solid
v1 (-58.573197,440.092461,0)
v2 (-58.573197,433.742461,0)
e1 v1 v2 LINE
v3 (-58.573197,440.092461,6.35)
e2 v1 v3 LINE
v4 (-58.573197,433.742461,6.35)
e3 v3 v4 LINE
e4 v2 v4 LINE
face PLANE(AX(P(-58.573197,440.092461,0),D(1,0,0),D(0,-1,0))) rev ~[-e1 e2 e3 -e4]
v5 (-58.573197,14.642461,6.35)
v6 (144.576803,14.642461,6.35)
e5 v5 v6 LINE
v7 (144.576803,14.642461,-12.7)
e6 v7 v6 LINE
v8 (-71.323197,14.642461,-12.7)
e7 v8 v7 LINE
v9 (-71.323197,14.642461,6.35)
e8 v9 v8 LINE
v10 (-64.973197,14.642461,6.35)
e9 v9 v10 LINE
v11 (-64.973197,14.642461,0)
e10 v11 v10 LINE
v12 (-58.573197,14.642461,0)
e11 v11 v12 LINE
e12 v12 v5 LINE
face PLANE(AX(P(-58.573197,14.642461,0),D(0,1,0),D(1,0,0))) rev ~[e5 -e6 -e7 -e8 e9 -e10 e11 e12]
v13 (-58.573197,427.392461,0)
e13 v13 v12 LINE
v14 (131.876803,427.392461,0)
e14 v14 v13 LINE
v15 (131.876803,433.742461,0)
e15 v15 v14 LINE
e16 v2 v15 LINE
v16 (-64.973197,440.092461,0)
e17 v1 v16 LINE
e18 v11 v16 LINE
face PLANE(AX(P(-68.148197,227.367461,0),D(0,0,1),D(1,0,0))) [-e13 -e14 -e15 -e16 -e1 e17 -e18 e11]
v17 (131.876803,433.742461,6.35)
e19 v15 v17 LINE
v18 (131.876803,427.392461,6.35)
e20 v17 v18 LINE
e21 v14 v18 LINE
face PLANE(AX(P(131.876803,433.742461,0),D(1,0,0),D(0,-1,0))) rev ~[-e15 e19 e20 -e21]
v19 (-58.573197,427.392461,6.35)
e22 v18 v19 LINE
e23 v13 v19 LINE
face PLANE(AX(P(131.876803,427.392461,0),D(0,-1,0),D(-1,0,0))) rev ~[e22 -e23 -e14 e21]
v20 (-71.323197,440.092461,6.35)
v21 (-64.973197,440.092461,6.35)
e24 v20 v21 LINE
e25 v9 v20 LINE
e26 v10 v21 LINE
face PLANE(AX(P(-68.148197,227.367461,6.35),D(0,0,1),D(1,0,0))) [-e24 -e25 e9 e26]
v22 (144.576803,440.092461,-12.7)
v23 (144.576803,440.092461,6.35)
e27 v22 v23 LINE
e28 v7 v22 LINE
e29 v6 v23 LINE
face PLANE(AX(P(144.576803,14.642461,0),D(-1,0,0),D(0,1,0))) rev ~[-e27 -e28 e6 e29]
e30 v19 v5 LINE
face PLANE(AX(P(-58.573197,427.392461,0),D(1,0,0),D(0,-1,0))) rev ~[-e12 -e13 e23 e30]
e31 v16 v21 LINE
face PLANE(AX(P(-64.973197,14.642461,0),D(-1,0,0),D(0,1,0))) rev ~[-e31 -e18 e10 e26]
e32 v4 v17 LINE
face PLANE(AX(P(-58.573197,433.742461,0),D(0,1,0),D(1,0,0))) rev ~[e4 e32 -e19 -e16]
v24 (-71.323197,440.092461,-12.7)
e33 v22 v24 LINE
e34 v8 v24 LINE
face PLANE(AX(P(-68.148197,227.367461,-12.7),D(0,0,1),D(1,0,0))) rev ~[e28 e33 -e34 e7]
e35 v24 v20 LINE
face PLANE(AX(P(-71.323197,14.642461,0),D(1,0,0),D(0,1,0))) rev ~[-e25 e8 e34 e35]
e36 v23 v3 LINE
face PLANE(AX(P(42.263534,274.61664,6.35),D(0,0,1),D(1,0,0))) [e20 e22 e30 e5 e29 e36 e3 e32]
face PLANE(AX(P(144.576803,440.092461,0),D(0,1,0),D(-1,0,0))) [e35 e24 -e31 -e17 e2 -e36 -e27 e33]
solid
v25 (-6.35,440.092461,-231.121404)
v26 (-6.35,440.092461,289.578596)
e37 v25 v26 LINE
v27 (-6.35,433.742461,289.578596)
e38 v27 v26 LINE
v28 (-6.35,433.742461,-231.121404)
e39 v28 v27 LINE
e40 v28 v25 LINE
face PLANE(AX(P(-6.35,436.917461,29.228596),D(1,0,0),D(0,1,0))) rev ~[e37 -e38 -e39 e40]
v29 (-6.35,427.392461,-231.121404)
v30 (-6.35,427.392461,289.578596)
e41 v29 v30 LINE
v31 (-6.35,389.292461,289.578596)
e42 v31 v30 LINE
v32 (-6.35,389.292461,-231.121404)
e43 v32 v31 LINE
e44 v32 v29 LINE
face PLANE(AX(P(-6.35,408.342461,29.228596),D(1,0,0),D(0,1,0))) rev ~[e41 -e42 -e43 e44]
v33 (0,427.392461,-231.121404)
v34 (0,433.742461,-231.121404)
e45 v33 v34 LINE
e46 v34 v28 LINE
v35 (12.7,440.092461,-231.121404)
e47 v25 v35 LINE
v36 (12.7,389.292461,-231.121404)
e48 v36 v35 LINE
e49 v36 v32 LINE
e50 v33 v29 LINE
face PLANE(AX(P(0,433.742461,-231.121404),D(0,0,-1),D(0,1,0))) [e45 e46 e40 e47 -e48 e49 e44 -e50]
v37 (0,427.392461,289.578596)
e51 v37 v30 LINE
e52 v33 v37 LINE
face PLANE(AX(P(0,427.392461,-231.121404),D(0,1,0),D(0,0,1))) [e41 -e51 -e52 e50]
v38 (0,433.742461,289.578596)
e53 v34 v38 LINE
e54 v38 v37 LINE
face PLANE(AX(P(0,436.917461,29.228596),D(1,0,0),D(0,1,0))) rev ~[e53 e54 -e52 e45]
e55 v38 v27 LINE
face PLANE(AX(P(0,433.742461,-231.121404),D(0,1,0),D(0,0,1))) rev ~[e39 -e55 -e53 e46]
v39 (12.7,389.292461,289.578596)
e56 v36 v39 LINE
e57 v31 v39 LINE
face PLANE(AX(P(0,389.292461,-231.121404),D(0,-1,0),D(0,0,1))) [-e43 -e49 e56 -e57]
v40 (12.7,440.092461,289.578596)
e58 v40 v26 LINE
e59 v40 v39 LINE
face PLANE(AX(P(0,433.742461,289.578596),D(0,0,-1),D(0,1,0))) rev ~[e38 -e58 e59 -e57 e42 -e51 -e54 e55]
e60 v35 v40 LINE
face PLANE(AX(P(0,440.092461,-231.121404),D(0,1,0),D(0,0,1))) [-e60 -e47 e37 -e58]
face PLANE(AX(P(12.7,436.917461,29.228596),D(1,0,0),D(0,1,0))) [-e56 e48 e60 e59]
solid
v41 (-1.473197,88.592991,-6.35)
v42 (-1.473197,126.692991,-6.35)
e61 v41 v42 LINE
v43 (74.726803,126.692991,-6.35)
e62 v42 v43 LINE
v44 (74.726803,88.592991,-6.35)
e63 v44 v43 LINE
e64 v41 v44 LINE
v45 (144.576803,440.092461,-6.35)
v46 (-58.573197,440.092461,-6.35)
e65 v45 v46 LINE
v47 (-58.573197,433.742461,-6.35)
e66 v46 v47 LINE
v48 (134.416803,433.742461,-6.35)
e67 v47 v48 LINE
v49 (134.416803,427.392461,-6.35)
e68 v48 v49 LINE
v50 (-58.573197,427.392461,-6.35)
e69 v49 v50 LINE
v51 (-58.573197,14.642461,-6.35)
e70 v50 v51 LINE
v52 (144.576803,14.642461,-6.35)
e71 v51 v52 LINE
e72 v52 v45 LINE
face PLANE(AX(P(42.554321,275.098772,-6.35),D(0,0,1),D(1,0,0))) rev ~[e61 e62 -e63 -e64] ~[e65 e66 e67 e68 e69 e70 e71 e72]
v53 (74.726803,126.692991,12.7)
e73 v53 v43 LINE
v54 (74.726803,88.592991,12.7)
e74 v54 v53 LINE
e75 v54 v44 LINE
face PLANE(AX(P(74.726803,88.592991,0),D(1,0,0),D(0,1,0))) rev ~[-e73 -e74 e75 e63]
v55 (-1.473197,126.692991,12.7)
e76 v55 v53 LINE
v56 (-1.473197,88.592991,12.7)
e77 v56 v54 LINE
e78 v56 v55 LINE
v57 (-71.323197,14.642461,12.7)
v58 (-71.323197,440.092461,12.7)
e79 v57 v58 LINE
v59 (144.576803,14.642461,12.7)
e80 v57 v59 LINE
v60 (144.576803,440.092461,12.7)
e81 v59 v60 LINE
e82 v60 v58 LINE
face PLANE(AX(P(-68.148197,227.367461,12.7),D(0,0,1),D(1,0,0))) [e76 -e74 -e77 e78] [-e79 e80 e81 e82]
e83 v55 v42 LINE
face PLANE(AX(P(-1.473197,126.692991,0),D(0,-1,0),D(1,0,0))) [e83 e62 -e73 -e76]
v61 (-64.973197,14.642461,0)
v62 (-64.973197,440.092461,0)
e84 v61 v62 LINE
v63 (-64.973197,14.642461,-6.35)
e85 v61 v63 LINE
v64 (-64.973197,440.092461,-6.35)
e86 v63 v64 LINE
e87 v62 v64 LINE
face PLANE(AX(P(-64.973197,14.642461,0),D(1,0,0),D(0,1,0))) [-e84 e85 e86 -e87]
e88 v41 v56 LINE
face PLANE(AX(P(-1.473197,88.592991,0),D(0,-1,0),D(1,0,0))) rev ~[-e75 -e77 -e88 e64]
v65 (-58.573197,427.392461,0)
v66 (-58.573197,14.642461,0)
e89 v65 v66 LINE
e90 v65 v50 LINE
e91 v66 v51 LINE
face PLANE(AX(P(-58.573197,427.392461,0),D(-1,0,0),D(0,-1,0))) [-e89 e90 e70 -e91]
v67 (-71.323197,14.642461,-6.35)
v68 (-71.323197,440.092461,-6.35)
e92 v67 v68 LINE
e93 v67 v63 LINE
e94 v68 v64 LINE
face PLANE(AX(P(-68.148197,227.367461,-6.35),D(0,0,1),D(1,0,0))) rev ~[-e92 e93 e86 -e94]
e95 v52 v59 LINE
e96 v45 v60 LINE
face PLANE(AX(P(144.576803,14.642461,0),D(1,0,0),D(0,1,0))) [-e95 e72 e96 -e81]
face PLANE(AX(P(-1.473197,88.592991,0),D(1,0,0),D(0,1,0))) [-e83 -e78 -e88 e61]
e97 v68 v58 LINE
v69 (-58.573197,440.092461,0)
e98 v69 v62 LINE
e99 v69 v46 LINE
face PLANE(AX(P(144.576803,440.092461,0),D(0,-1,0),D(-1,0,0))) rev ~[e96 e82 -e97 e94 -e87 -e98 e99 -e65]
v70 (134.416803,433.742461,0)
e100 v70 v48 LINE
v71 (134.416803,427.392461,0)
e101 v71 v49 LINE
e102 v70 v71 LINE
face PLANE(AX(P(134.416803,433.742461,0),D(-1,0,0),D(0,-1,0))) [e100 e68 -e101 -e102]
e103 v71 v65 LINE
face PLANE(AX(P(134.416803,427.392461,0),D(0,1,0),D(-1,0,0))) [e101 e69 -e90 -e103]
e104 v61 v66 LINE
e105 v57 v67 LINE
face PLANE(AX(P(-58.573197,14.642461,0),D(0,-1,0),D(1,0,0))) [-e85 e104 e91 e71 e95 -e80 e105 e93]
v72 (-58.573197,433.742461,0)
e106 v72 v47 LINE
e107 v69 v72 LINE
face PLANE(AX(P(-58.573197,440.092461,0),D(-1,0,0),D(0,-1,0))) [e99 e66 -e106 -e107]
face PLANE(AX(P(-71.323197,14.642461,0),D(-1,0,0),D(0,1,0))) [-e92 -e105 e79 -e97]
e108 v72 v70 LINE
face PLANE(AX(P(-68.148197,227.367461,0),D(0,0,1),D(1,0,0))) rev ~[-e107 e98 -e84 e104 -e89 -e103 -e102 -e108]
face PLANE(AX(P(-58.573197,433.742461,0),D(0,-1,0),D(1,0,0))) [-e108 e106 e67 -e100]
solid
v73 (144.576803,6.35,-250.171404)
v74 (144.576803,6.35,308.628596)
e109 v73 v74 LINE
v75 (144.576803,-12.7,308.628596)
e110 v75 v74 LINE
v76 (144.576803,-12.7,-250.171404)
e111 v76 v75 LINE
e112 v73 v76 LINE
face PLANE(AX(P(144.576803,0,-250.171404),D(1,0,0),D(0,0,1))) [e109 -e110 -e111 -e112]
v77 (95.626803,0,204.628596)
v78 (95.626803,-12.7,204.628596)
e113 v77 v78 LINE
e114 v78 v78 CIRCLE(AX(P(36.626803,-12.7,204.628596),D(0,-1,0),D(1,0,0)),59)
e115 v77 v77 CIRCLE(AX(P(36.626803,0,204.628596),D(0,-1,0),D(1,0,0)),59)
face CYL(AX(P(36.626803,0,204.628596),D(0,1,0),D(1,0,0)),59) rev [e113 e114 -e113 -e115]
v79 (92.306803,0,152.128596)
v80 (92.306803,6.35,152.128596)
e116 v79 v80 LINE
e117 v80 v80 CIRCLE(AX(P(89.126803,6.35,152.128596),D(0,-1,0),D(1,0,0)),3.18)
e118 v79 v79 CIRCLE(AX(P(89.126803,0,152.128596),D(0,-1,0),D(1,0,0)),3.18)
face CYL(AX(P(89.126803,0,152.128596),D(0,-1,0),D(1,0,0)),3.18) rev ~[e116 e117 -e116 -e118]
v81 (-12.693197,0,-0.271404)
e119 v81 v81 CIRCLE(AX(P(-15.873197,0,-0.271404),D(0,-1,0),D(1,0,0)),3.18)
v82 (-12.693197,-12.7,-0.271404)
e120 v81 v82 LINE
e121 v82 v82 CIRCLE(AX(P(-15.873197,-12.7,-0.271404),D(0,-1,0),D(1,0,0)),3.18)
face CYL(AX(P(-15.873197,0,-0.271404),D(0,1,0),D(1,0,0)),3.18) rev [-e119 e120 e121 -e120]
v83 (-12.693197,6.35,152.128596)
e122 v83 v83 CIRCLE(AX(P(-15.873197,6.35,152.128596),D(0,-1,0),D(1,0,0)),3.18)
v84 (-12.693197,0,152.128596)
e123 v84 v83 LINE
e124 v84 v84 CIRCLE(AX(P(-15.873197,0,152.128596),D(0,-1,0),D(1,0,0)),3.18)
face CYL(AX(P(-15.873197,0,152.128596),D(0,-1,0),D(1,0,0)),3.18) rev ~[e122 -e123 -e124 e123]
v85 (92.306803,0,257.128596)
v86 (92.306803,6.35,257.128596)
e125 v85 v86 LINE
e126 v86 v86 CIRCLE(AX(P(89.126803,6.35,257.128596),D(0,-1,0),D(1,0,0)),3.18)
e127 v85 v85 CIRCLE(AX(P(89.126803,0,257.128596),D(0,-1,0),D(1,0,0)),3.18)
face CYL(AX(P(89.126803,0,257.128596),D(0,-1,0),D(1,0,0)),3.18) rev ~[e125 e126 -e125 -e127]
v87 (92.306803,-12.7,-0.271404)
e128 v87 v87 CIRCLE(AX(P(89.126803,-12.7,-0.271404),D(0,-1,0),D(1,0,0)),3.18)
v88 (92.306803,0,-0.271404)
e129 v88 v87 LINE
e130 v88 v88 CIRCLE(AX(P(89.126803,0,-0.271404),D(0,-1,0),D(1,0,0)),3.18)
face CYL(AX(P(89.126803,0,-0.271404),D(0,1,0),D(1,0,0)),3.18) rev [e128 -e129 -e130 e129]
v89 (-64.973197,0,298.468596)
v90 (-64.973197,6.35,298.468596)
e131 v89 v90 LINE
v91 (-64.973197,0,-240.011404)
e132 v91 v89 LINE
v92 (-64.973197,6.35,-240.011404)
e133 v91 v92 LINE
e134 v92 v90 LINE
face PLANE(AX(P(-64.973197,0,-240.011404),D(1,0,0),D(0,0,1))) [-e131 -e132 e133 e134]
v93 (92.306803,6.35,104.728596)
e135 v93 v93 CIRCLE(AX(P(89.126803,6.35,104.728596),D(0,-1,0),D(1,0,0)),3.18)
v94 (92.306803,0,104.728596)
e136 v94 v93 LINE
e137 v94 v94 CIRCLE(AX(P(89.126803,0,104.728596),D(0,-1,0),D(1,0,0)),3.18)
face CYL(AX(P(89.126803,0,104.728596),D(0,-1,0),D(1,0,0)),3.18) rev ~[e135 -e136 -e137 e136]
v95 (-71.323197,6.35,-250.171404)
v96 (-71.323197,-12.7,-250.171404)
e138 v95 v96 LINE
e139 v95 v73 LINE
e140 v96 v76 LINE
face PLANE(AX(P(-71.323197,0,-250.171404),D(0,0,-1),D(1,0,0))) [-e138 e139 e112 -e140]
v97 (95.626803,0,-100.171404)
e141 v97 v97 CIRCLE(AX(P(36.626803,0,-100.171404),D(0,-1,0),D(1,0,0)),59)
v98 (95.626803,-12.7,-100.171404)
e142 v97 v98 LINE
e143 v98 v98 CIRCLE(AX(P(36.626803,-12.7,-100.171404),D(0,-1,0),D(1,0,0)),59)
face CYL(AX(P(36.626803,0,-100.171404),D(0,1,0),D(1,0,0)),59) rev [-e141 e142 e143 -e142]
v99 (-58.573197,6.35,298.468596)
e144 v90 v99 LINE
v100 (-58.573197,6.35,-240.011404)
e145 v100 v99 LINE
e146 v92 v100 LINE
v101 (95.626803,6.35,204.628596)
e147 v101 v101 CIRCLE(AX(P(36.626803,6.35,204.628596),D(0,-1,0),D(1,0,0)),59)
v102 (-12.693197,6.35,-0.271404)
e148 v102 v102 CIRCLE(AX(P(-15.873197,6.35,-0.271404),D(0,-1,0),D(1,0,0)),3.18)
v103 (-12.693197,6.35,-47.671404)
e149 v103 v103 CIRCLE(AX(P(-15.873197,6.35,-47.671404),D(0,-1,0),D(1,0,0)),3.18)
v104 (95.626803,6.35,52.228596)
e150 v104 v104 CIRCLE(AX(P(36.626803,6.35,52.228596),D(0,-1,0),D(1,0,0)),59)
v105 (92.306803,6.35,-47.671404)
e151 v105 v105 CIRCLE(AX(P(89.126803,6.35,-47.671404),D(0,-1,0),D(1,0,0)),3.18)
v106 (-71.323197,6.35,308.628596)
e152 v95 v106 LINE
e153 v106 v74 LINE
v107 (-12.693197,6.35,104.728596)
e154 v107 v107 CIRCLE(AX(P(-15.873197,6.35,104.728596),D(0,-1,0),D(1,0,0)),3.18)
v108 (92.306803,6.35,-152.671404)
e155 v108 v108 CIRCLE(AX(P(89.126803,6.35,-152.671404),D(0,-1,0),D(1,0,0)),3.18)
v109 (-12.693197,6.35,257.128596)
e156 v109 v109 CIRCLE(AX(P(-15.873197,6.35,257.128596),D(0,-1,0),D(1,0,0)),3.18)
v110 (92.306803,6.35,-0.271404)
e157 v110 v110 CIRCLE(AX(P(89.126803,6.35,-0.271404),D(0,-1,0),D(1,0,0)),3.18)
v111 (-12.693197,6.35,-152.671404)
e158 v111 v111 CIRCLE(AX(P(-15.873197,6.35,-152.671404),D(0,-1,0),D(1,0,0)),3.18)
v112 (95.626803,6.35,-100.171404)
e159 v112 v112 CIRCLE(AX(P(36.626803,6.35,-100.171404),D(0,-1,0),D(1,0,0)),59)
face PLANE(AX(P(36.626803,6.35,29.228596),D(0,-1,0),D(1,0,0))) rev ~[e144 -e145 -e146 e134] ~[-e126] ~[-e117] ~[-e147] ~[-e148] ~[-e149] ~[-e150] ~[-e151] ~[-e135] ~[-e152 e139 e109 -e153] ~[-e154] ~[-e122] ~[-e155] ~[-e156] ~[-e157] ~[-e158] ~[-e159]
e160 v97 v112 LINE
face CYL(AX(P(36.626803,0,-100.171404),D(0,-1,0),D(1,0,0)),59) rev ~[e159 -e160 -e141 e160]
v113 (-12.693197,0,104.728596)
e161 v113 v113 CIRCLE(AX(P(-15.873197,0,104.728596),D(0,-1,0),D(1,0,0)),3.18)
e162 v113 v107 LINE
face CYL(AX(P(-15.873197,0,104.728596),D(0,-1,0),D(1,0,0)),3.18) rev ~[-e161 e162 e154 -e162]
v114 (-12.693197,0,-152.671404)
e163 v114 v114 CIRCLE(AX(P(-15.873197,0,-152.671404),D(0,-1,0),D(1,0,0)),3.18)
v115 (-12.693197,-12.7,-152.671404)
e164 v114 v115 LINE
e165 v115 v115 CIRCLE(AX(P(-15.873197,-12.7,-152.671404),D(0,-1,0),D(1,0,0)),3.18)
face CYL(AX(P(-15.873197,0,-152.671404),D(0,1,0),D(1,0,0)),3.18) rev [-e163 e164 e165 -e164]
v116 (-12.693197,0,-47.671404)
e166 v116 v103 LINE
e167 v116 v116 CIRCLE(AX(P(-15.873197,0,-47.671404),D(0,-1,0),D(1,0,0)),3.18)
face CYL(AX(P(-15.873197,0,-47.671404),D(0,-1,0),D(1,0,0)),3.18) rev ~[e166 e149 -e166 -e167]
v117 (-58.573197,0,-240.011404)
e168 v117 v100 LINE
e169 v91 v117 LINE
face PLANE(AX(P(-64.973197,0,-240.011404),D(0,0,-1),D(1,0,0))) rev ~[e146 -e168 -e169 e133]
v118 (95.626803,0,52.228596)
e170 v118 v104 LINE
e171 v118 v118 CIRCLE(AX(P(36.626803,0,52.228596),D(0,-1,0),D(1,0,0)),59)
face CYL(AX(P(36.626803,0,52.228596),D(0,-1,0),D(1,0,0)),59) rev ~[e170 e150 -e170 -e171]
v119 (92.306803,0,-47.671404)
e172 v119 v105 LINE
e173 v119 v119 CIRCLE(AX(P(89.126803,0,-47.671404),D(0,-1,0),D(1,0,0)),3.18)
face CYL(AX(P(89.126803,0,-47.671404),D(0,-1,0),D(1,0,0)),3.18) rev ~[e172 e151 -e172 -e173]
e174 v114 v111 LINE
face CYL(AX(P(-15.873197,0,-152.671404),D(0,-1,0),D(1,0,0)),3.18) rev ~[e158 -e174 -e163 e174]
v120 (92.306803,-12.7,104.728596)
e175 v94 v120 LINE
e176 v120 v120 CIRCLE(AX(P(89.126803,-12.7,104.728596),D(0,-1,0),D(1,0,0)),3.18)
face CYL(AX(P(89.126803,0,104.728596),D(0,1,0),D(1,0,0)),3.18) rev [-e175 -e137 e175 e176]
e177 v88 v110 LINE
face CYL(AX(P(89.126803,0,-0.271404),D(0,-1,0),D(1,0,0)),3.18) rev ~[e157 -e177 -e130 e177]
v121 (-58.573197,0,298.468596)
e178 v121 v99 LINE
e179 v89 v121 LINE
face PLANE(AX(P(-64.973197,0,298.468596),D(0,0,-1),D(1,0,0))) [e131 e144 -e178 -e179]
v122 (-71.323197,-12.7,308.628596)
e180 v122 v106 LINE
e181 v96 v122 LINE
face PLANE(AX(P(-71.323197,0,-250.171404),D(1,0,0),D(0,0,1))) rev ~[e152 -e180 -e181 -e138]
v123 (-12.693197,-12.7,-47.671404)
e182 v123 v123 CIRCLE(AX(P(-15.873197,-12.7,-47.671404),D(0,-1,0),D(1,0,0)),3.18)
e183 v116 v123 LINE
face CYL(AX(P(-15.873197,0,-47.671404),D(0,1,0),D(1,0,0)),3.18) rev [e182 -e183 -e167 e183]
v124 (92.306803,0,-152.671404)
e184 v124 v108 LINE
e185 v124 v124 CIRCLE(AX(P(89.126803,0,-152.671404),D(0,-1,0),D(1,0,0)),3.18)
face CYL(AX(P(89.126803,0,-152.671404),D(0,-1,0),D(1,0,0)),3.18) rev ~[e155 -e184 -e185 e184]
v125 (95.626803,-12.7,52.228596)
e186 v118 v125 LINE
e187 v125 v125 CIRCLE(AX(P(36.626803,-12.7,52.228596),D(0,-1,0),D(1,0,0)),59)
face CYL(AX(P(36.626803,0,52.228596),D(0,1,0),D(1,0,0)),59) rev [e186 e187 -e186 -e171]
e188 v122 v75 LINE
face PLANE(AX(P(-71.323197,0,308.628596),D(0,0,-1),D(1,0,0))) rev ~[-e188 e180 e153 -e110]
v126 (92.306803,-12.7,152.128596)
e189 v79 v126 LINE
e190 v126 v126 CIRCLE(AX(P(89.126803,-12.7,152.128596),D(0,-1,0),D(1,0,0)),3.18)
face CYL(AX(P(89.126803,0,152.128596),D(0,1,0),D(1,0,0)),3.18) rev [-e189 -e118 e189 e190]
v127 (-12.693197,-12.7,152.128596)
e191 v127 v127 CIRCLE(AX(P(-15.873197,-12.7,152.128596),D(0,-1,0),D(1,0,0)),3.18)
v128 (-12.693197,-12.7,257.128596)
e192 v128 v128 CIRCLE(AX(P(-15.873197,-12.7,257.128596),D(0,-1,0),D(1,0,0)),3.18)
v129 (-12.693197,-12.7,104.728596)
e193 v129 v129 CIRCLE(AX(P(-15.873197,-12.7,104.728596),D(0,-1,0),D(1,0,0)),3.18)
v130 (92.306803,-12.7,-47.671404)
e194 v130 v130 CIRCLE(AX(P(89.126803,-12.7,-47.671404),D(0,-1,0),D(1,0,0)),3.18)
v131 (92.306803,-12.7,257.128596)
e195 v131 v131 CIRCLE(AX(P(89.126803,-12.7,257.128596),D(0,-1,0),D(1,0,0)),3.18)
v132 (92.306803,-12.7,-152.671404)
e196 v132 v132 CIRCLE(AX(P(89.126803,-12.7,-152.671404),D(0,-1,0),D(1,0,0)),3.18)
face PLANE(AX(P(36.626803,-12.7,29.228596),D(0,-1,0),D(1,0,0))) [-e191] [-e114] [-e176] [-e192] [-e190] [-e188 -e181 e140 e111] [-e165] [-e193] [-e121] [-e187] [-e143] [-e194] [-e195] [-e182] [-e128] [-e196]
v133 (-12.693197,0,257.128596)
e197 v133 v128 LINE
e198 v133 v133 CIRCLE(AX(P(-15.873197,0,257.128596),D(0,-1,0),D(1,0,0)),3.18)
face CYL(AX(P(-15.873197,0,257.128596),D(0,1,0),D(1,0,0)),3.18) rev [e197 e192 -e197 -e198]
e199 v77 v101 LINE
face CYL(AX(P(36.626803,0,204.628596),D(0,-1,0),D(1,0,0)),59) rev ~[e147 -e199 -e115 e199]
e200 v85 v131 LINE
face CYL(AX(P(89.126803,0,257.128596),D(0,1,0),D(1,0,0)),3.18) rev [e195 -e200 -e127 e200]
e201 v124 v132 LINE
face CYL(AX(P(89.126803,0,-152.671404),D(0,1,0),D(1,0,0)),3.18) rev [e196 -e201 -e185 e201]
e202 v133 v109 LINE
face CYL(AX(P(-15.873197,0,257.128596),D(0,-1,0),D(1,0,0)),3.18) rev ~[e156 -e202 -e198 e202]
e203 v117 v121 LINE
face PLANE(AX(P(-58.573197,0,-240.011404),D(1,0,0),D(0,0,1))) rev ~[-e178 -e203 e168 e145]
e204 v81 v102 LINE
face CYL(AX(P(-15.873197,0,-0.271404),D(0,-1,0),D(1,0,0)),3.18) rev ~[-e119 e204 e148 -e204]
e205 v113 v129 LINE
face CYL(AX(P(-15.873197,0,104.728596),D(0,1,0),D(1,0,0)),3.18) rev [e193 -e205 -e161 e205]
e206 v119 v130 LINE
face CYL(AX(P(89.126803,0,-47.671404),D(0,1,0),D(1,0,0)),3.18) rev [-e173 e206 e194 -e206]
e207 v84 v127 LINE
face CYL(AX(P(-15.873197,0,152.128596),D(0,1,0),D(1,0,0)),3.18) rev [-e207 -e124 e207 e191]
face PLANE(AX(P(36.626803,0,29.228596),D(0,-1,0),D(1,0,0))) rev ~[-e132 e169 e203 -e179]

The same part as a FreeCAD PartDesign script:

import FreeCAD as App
import Part
import Sketcher
Q = App.Units.Quantity

doc = App.newDocument("Part")
params = doc.addObject("Spreadsheet::Sheet", "Params")
for row, (alias, value) in enumerate([
    ("sketch1_height", "22 in"),
    ("sketch1_width", "8.5 in"),
    ("pad1_length", "0.5 in"),
    ("sketch2_height", "22 in"),
    ("sketch2_width", "8.5 in"),
    ("sketch2_height2", "21.2 in"),
    ("pad2_length", "0.25 in"),
    ("sketch3_width", "3 in"),
    ("sketch3_width2", "8.5 in"),
    ("sketch3_height", "1.5 in"),
    ("sketch3_height2", "16.75 in"),
    ("pad3_length", "0.5 in"),
    ("sketch4_width", "3 in"),
    ("sketch4_height", "1.5 in"),
    ("sketch4_width2", "0.25 in"),
    ("sketch4_height2", "16.25 in"),
    ("pad4_length", "0.25 in"),
    ("sketch5_width", "8.5 in"),
    ("sketch5_height", "16.75 in"),
    ("pad5_length", "0.5 in"),
    ("sketch6_width", "0.25 in"),
    ("sketch6_height", "16.25 in"),
    ("pad6_length", "0.25 in"),
    ("sketch7_width", "2 in"),
    ("sketch7_height", "20.5 in"),
    ("pad7_length", "0.5 in"),
    ("sketch8_width", "1.5 in"),
    ("sketch8_height", "20.5 in"),
    ("sketch8_width2", "0.25 in"),
    ("pad8_length", "0.25 in"),
], start=1):
    params.set(f"A{row}", alias)
    params.set(f"B{row}", "=" + value)
    params.setAlias(f"B{row}", alias)

body = doc.addObject("PartDesign::Body", "Body")

# Sketch on XZ plane
sketch1 = body.newObject("Sketcher::SketchObject", "Sketch")
sketch1.AttachmentSupport = (doc.getObject("XZ_Plane"), [""])
sketch1.MapMode = "FlatFace"
sketch1.addGeometry([
    Part.LineSegment(App.Vector(-71.323197, 308.628596, 0), App.Vector(-71.323197, -250.171404, 0)),  # 0
    Part.LineSegment(App.Vector(-71.323197, -250.171404, 0), App.Vector(144.576803, -250.171404, 0)),  # 1
    Part.LineSegment(App.Vector(144.576803, -250.171404, 0), App.Vector(144.576803, 308.628596, 0)),  # 2
    Part.LineSegment(App.Vector(144.576803, 308.628596, 0), App.Vector(-71.323197, 308.628596, 0)),  # 3
    Part.Circle(App.Vector(-15.873197, -152.671404, 0), App.Vector(0, 0, 1), 3.18),  # 4
    Part.Circle(App.Vector(-15.873197, -47.671404, 0), App.Vector(0, 0, 1), 3.18),  # 5
    Part.Circle(App.Vector(-15.873197, -0.271404, 0), App.Vector(0, 0, 1), 3.18),  # 6
    Part.Circle(App.Vector(89.126803, -152.671404, 0), App.Vector(0, 0, 1), 3.18),  # 7
    Part.Circle(App.Vector(36.626803, -100.171404, 0), App.Vector(0, 0, 1), 59),  # 8
    Part.Circle(App.Vector(89.126803, -47.671404, 0), App.Vector(0, 0, 1), 3.18),  # 9
    Part.Circle(App.Vector(89.126803, -0.271404, 0), App.Vector(0, 0, 1), 3.18),  # 10
    Part.Circle(App.Vector(-15.873197, 104.728596, 0), App.Vector(0, 0, 1), 3.18),  # 11
    Part.Circle(App.Vector(-15.873197, 152.128596, 0), App.Vector(0, 0, 1), 3.18),  # 12
    Part.Circle(App.Vector(-15.873197, 257.128596, 0), App.Vector(0, 0, 1), 3.18),  # 13
    Part.Circle(App.Vector(36.626803, 52.228596, 0), App.Vector(0, 0, 1), 59),  # 14
    Part.Circle(App.Vector(89.126803, 104.728596, 0), App.Vector(0, 0, 1), 3.18),  # 15
    Part.Circle(App.Vector(89.126803, 152.128596, 0), App.Vector(0, 0, 1), 3.18),  # 16
    Part.Circle(App.Vector(36.626803, 204.628596, 0), App.Vector(0, 0, 1), 59),  # 17
    Part.Circle(App.Vector(89.126803, 257.128596, 0), App.Vector(0, 0, 1), 3.18),  # 18
], False)
sketch1.addConstraint([
    Sketcher.Constraint("Coincident", 0, 2, 1, 1),
    Sketcher.Constraint("Coincident", 1, 2, 2, 1),
    Sketcher.Constraint("Coincident", 2, 2, 3, 1),
    Sketcher.Constraint("Coincident", 3, 2, 0, 1),
    Sketcher.Constraint("Vertical", 0),
    Sketcher.Constraint("Horizontal", 1),
    Sketcher.Constraint("Vertical", 2),
    Sketcher.Constraint("Horizontal", 3),
    Sketcher.Constraint("Equal", 4, 5),
    Sketcher.Constraint("Equal", 5, 6),
    Sketcher.Constraint("Equal", 6, 7),
    Sketcher.Constraint("Equal", 7, 9),
    Sketcher.Constraint("Equal", 9, 10),
    Sketcher.Constraint("Equal", 10, 11),
    Sketcher.Constraint("Equal", 11, 12),
    Sketcher.Constraint("Equal", 12, 13),
    Sketcher.Constraint("Equal", 8, 14),
    Sketcher.Constraint("Equal", 13, 15),
    Sketcher.Constraint("Equal", 15, 16),
    Sketcher.Constraint("Equal", 14, 17),
    Sketcher.Constraint("Equal", 16, 18),
    Sketcher.Constraint("Horizontal", 4, 3, 7, 3),
    Sketcher.Constraint("Horizontal", 5, 3, 9, 3),
    Sketcher.Constraint("Horizontal", 6, 3, 10, 3),
    Sketcher.Constraint("Horizontal", 11, 3, 15, 3),
    Sketcher.Constraint("Horizontal", 12, 3, 16, 3),
    Sketcher.Constraint("Horizontal", 13, 3, 18, 3),
    Sketcher.Constraint("Vertical", 4, 3, 5, 3),
    Sketcher.Constraint("Vertical", 5, 3, 6, 3),
    Sketcher.Constraint("Vertical", 7, 3, 9, 3),
    Sketcher.Constraint("Vertical", 9, 3, 10, 3),
    Sketcher.Constraint("Vertical", 6, 3, 11, 3),
    Sketcher.Constraint("Vertical", 11, 3, 12, 3),
    Sketcher.Constraint("Vertical", 12, 3, 13, 3),
    Sketcher.Constraint("Vertical", 8, 3, 14, 3),
    Sketcher.Constraint("Vertical", 10, 3, 15, 3),
    Sketcher.Constraint("Vertical", 15, 3, 16, 3),
    Sketcher.Constraint("Vertical", 14, 3, 17, 3),
    Sketcher.Constraint("Vertical", 16, 3, 18, 3),
    Sketcher.Constraint("DistanceY", 0, 2, 0, 1, Q("22 in")),
    Sketcher.Constraint("DistanceX", 1, 1, 1, 2, Q("8.5 in")),
    Sketcher.Constraint("DistanceY", 4, 3, 6, 3, Q("6 in")),
    Sketcher.Constraint("DistanceY", 5, 3, 11, 3, Q("6 in")),
    Sketcher.Constraint("DistanceY", 6, 3, 12, 3, Q("6 in")),
    Sketcher.Constraint("DistanceY", 11, 3, 13, 3, Q("6 in")),
    Sketcher.Constraint("Diameter", 4, Q("6.36 mm")),
    Sketcher.Constraint("Diameter", 8, Q("118 mm")),
    Sketcher.Constraint("DistanceX", 0, 2, 8, 3, Q("4.25 in")),
    Sketcher.Constraint("DistanceX", -1, 1, 8, 3, Q("1.4420001 in")),
    Sketcher.Constraint("DistanceY", 4, 3, 5, 3, Q("105 mm")),
    Sketcher.Constraint("DistanceX", 4, 3, 7, 3, Q("105 mm")),
    Sketcher.Constraint("DistanceX", 4, 3, 8, 3, Q("52.5 mm")),
    Sketcher.Constraint("DistanceY", 4, 3, 8, 3, Q("52.5 mm")),
    Sketcher.Constraint("DistanceY", 6, 3, 14, 3, Q("52.5 mm")),
    Sketcher.Constraint("DistanceY", 12, 3, 17, 3, Q("52.5 mm")),
    Sketcher.Constraint("DistanceY", 0, 2, 4, 3, Q("97.5 mm")),
    Sketcher.Constraint("DistanceY", 4, 3, -1, 1, Q("152.671404 mm")),
])
sketch1.setExpression("Constraints[39]", "Params.sketch1_height")
sketch1.setExpression("Constraints[40]", "Params.sketch1_width")
pad1 = body.newObject("PartDesign::Pad", "Pad")
pad1.Profile = sketch1
pad1.setExpression("Length", "Params.pad1_length")

# Sketch on XZ plane
sketch2 = body.newObject("Sketcher::SketchObject", "Sketch001")
sketch2.AttachmentSupport = (doc.getObject("XZ_Plane"), [""])
sketch2.MapMode = "FlatFace"
sketch2.addGeometry([
    Part.LineSegment(App.Vector(-71.323197, 308.628596, 0), App.Vector(-71.323197, -250.171404, 0)),  # 0
    Part.LineSegment(App.Vector(-71.323197, -250.171404, 0), App.Vector(144.576803, -250.171404, 0)),  # 1
    Part.LineSegment(App.Vector(144.576803, -250.171404, 0), App.Vector(144.576803, 308.628596, 0)),  # 2
    Part.LineSegment(App.Vector(144.576803, 308.628596, 0), App.Vector(-71.323197, 308.628596, 0)),  # 3
    Part.Circle(App.Vector(-15.873197, -152.671404, 0), App.Vector(0, 0, 1), 3.18),  # 4
    Part.Circle(App.Vector(-15.873197, -47.671404, 0), App.Vector(0, 0, 1), 3.18),  # 5
    Part.Circle(App.Vector(-15.873197, -0.271404, 0), App.Vector(0, 0, 1), 3.18),  # 6
    Part.Circle(App.Vector(89.126803, -152.671404, 0), App.Vector(0, 0, 1), 3.18),  # 7
    Part.Circle(App.Vector(36.626803, -100.171404, 0), App.Vector(0, 0, 1), 59),  # 8
    Part.Circle(App.Vector(89.126803, -47.671404, 0), App.Vector(0, 0, 1), 3.18),  # 9
    Part.Circle(App.Vector(89.126803, -0.271404, 0), App.Vector(0, 0, 1), 3.18),  # 10
    Part.LineSegment(App.Vector(-58.573197, -240.011404, 0), App.Vector(-64.973197, -240.011404, 0)),  # 11
    Part.LineSegment(App.Vector(-64.973197, -240.011404, 0), App.Vector(-64.973197, 298.468596, 0)),  # 12
    Part.LineSegment(App.Vector(-64.973197, 298.468596, 0), App.Vector(-58.573197, 298.468596, 0)),  # 13
    Part.LineSegment(App.Vector(-58.573197, 298.468596, 0), App.Vector(-58.573197, -240.011404, 0)),  # 14
    Part.Circle(App.Vector(-15.873197, 104.728596, 0), App.Vector(0, 0, 1), 3.18),  # 15
    Part.Circle(App.Vector(-15.873197, 152.128596, 0), App.Vector(0, 0, 1), 3.18),  # 16
    Part.Circle(App.Vector(-15.873197, 257.128596, 0), App.Vector(0, 0, 1), 3.18),  # 17
    Part.Circle(App.Vector(36.626803, 52.228596, 0), App.Vector(0, 0, 1), 59),  # 18
    Part.Circle(App.Vector(89.126803, 104.728596, 0), App.Vector(0, 0, 1), 3.18),  # 19
    Part.Circle(App.Vector(89.126803, 152.128596, 0), App.Vector(0, 0, 1), 3.18),  # 20
    Part.Circle(App.Vector(36.626803, 204.628596, 0), App.Vector(0, 0, 1), 59),  # 21
    Part.Circle(App.Vector(89.126803, 257.128596, 0), App.Vector(0, 0, 1), 3.18),  # 22
], False)
sketch2.addConstraint([
    Sketcher.Constraint("Coincident", 0, 2, 1, 1),
    Sketcher.Constraint("Coincident", 1, 2, 2, 1),
    Sketcher.Constraint("Coincident", 2, 2, 3, 1),
    Sketcher.Constraint("Coincident", 3, 2, 0, 1),
    Sketcher.Constraint("Coincident", 11, 2, 12, 1),
    Sketcher.Constraint("Coincident", 12, 2, 13, 1),
    Sketcher.Constraint("Coincident", 13, 2, 14, 1),
    Sketcher.Constraint("Coincident", 14, 2, 11, 1),
    Sketcher.Constraint("Vertical", 0),
    Sketcher.Constraint("Horizontal", 1),
    Sketcher.Constraint("Vertical", 2),
    Sketcher.Constraint("Horizontal", 3),
    Sketcher.Constraint("Horizontal", 11),
    Sketcher.Constraint("Vertical", 12),
    Sketcher.Constraint("Horizontal", 13),
    Sketcher.Constraint("Vertical", 14),
    Sketcher.Constraint("Equal", 4, 5),
    Sketcher.Constraint("Equal", 5, 6),
    Sketcher.Constraint("Equal", 6, 7),
    Sketcher.Constraint("Equal", 7, 9),
    Sketcher.Constraint("Equal", 9, 10),
    Sketcher.Constraint("Equal", 10, 15),
    Sketcher.Constraint("Equal", 15, 16),
    Sketcher.Constraint("Equal", 16, 17),
    Sketcher.Constraint("Equal", 8, 18),
    Sketcher.Constraint("Equal", 17, 19),
    Sketcher.Constraint("Equal", 19, 20),
    Sketcher.Constraint("Equal", 18, 21),
    Sketcher.Constraint("Equal", 20, 22),
    Sketcher.Constraint("Horizontal", 4, 3, 7, 3),
    Sketcher.Constraint("Horizontal", 5, 3, 9, 3),
    Sketcher.Constraint("Horizontal", 6, 3, 10, 3),
    Sketcher.Constraint("Horizontal", 15, 3, 19, 3),
    Sketcher.Constraint("Horizontal", 16, 3, 20, 3),
    Sketcher.Constraint("Horizontal", 17, 3, 22, 3),
    Sketcher.Constraint("Vertical", 4, 3, 5, 3),
    Sketcher.Constraint("Vertical", 5, 3, 6, 3),
    Sketcher.Constraint("Vertical", 7, 3, 9, 3),
    Sketcher.Constraint("Vertical", 9, 3, 10, 3),
    Sketcher.Constraint("Vertical", 6, 3, 15, 3),
    Sketcher.Constraint("Vertical", 15, 3, 16, 3),
    Sketcher.Constraint("Vertical", 16, 3, 17, 3),
    Sketcher.Constraint("Vertical", 8, 3, 18, 3),
    Sketcher.Constraint("Vertical", 10, 3, 19, 3),
    Sketcher.Constraint("Vertical", 19, 3, 20, 3),
    Sketcher.Constraint("Vertical", 18, 3, 21, 3),
    Sketcher.Constraint("Vertical", 20, 3, 22, 3),
    Sketcher.Constraint("DistanceY", 0, 2, 0, 1, Q("22 in")),
    Sketcher.Constraint("DistanceX", 1, 1, 1, 2, Q("8.5 in")),
    Sketcher.Constraint("DistanceY", 12, 1, 12, 2, Q("21.2 in")),
    Sketcher.Constraint("DistanceY", 4, 3, 6, 3, Q("6 in")),
    Sketcher.Constraint("DistanceY", 5, 3, 15, 3, Q("6 in")),
    Sketcher.Constraint("DistanceY", 6, 3, 16, 3, Q("6 in")),
    Sketcher.Constraint("DistanceY", 15, 3, 17, 3, Q("6 in")),
    Sketcher.Constraint("DistanceX", 11, 2, 8, 3, Q("4 in")),
    Sketcher.Constraint("DistanceY", 0, 2, 11, 2, Q("0.4 in")),
    Sketcher.Constraint("Diameter", 4, Q("6.36 mm")),
    Sketcher.Constraint("Diameter", 8, Q("118 mm")),
    Sketcher.Constraint("DistanceX", 0, 2, 8, 3, Q("4.25 in")),
    Sketcher.Constraint("DistanceX", -1, 1, 8, 3, Q("1.4420001 in")),
    Sketcher.Constraint("DistanceX", 11, 2, 11, 1, Q("6.4 mm")),
    Sketcher.Constraint("DistanceY", 4, 3, 5, 3, Q("105 mm")),
    Sketcher.Constraint("DistanceX", 4, 3, 7, 3, Q("105 mm")),
    Sketcher.Constraint("DistanceX", 4, 3, 8, 3, Q("52.5 mm")),
    Sketcher.Constraint("DistanceY", 4, 3, 8, 3, Q("52.5 mm")),
    Sketcher.Constraint("DistanceY", 6, 3, 18, 3, Q("52.5 mm")),
    Sketcher.Constraint("DistanceY", 16, 3, 21, 3, Q("52.5 mm")),
    Sketcher.Constraint("DistanceY", 0, 2, 4, 3, Q("97.5 mm")),
    Sketcher.Constraint("DistanceY", 4, 3, -1, 1, Q("152.671404 mm")),
])
sketch2.setExpression("Constraints[47]", "Params.sketch2_height")
sketch2.setExpression("Constraints[48]", "Params.sketch2_width")
sketch2.setExpression("Constraints[49]", "Params.sketch2_height2")
pad2 = body.newObject("PartDesign::Pad", "Pad001")
pad2.Profile = sketch2
pad2.setExpression("Length", "Params.pad2_length")
pad2.Reversed = True
body2 = doc.addObject("PartDesign::Body", "Body001")

# Sketch on XY plane
sketch3 = body2.newObject("Sketcher::SketchObject", "Sketch002")
sketch3.AttachmentSupport = (doc.getObject("XY_Plane001"), [""])
sketch3.MapMode = "FlatFace"
sketch3.addGeometry([
    Part.LineSegment(App.Vector(-71.323197, 440.092461, 0), App.Vector(-71.323197, 14.642461, 0)),  # 0
    Part.LineSegment(App.Vector(-71.323197, 14.642461, 0), App.Vector(144.576803, 14.642461, 0)),  # 1
    Part.LineSegment(App.Vector(144.576803, 14.642461, 0), App.Vector(144.576803, 440.092461, 0)),  # 2
    Part.LineSegment(App.Vector(144.576803, 440.092461, 0), App.Vector(-71.323197, 440.092461, 0)),  # 3
    Part.LineSegment(App.Vector(74.726803, 88.592991, 0), App.Vector(-1.473197, 88.592991, 0)),  # 4
    Part.LineSegment(App.Vector(-1.473197, 88.592991, 0), App.Vector(-1.473197, 126.692991, 0)),  # 5
    Part.LineSegment(App.Vector(-1.473197, 126.692991, 0), App.Vector(74.726803, 126.692991, 0)),  # 6
    Part.LineSegment(App.Vector(74.726803, 126.692991, 0), App.Vector(74.726803, 88.592991, 0)),  # 7
], False)
sketch3.addConstraint([
    Sketcher.Constraint("Coincident", 0, 2, 1, 1),
    Sketcher.Constraint("Coincident", 1, 2, 2, 1),
    Sketcher.Constraint("Coincident", 2, 2, 3, 1),
    Sketcher.Constraint("Coincident", 3, 2, 0, 1),
    Sketcher.Constraint("Coincident", 4, 2, 5, 1),
    Sketcher.Constraint("Coincident", 5, 2, 6, 1),
    Sketcher.Constraint("Coincident", 6, 2, 7, 1),
    Sketcher.Constraint("Coincident", 7, 2, 4, 1),
    Sketcher.Constraint("Vertical", 0),
    Sketcher.Constraint("Horizontal", 1),
    Sketcher.Constraint("Vertical", 2),
    Sketcher.Constraint("Horizontal", 3),
    Sketcher.Constraint("Horizontal", 4),
    Sketcher.Constraint("Vertical", 5),
    Sketcher.Constraint("Horizontal", 6),
    Sketcher.Constraint("Vertical", 7),
    Sketcher.Constraint("DistanceX", 4, 2, 4, 1, Q("3 in")),
    Sketcher.Constraint("DistanceX", 1, 1, 1, 2, Q("8.5 in")),
    Sketcher.Constraint("DistanceY", 5, 1, 5, 2, Q("1.5 in")),
    Sketcher.Constraint("DistanceY", 0, 2, 0, 1, Q("16.75 in")),
    Sketcher.Constraint("DistanceX", 0, 2, 4, 2, Q("2.75 in")),
    Sketcher.Constraint("DistanceX", 0, 2, -1, 1, Q("2.8079999 in")),
    Sketcher.Constraint("DistanceY", -1, 1, 0, 2, Q("14.642461 mm")),
    Sketcher.Constraint("DistanceY", -1, 1, 4, 2, Q("88.592991 mm")),
])
sketch3.setExpression("Constraints[16]", "Params.sketch3_width")
sketch3.setExpression("Constraints[17]", "Params.sketch3_width2")
sketch3.setExpression("Constraints[18]", "Params.sketch3_height")
sketch3.setExpression("Constraints[19]", "Params.sketch3_height2")
pad3 = body2.newObject("PartDesign::Pad", "Pad002")
pad3.Profile = sketch3
pad3.setExpression("Length", "Params.pad3_length")

# Sketch on XY plane
sketch4 = body2.newObject("Sketcher::SketchObject", "Sketch003")
sketch4.AttachmentSupport = (doc.getObject("XY_Plane001"), [""])
sketch4.MapMode = "FlatFace"
sketch4.addGeometry([
    Part.LineSegment(App.Vector(-58.573197, 427.392461, 0), App.Vector(-58.573197, 14.642461, 0)),  # 0
    Part.LineSegment(App.Vector(-58.573197, 14.642461, 0), App.Vector(144.576803, 14.642461, 0)),  # 1
    Part.LineSegment(App.Vector(144.576803, 14.642461, 0), App.Vector(144.576803, 440.092461, 0)),  # 2
    Part.LineSegment(App.Vector(144.576803, 440.092461, 0), App.Vector(-58.573197, 440.092461, 0)),  # 3
    Part.LineSegment(App.Vector(-58.573197, 440.092461, 0), App.Vector(-58.573197, 433.742461, 0)),  # 4
    Part.LineSegment(App.Vector(-58.573197, 433.742461, 0), App.Vector(134.416803, 433.742461, 0)),  # 5
    Part.LineSegment(App.Vector(134.416803, 433.742461, 0), App.Vector(134.416803, 427.392461, 0)),  # 6
    Part.LineSegment(App.Vector(134.416803, 427.392461, 0), App.Vector(-58.573197, 427.392461, 0)),  # 7
    Part.LineSegment(App.Vector(74.726803, 88.592991, 0), App.Vector(-1.473197, 88.592991, 0)),  # 8
    Part.LineSegment(App.Vector(-1.473197, 88.592991, 0), App.Vector(-1.473197, 126.692991, 0)),  # 9
    Part.LineSegment(App.Vector(-1.473197, 126.692991, 0), App.Vector(74.726803, 126.692991, 0)),  # 10
    Part.LineSegment(App.Vector(74.726803, 126.692991, 0), App.Vector(74.726803, 88.592991, 0)),  # 11
    Part.LineSegment(App.Vector(-71.323197, 440.092461, 0), App.Vector(-71.323197, 14.642461, 0)),  # 12
    Part.LineSegment(App.Vector(-71.323197, 14.642461, 0), App.Vector(-64.973197, 14.642461, 0)),  # 13
    Part.LineSegment(App.Vector(-64.973197, 14.642461, 0), App.Vector(-64.973197, 440.092461, 0)),  # 14
    Part.LineSegment(App.Vector(-64.973197, 440.092461, 0), App.Vector(-71.323197, 440.092461, 0)),  # 15
], False)
sketch4.addConstraint([
    Sketcher.Constraint("Coincident", 0, 2, 1, 1),
    Sketcher.Constraint("Coincident", 1, 2, 2, 1),
    Sketcher.Constraint("Coincident", 2, 2, 3, 1),
    Sketcher.Constraint("Coincident", 3, 2, 4, 1),
    Sketcher.Constraint("Coincident", 4, 2, 5, 1),
    Sketcher.Constraint("Coincident", 5, 2, 6, 1),
    Sketcher.Constraint("Coincident", 6, 2, 7, 1),
    Sketcher.Constraint("Coincident", 7, 2, 0, 1),
    Sketcher.Constraint("Coincident", 8, 2, 9, 1),
    Sketcher.Constraint("Coincident", 9, 2, 10, 1),
    Sketcher.Constraint("Coincident", 10, 2, 11, 1),
    Sketcher.Constraint("Coincident", 11, 2, 8, 1),
    Sketcher.Constraint("Coincident", 12, 2, 13, 1),
    Sketcher.Constraint("Coincident", 13, 2, 14, 1),
    Sketcher.Constraint("Coincident", 14, 2, 15, 1),
    Sketcher.Constraint("Coincident", 15, 2, 12, 1),
    Sketcher.Constraint("Vertical", 0),
    Sketcher.Constraint("Horizontal", 1),
    Sketcher.Constraint("Vertical", 2),
    Sketcher.Constraint("Horizontal", 3),
    Sketcher.Constraint("Vertical", 4),
    Sketcher.Constraint("Horizontal", 5),
    Sketcher.Constraint("Vertical", 6),
    Sketcher.Constraint("Horizontal", 7),
    Sketcher.Constraint("Horizontal", 8),
    Sketcher.Constraint("Vertical", 9),
    Sketcher.Constraint("Horizontal", 10),
    Sketcher.Constraint("Vertical", 11),
    Sketcher.Constraint("Vertical", 12),
    Sketcher.Constraint("Horizontal", 13),
    Sketcher.Constraint("Vertical", 14),
    Sketcher.Constraint("Horizontal", 15),
    Sketcher.Constraint("Horizontal", 1, 2, 12, 2),
    Sketcher.Constraint("Horizontal", 3, 2, 14, 2),
    Sketcher.Constraint("Vertical", 0, 2, 3, 2),
    Sketcher.Constraint("Equal", 15, 4),
    Sketcher.Constraint("Equal", 4, 6),
    Sketcher.Constraint("DistanceX", 8, 2, 8, 1, Q("3 in")),
    Sketcher.Constraint("DistanceY", 9, 1, 9, 2, Q("1.5 in")),
    Sketcher.Constraint("DistanceX", 13, 1, 13, 2, Q("0.25 in")),
    Sketcher.Constraint("DistanceY", 0, 2, 0, 1, Q("16.25 in")),
    Sketcher.Constraint("DistanceX", 5, 2, 2, 2, Q("0.4 in")),
    Sketcher.Constraint("DistanceX", 13, 2, 8, 2, Q("2.5 in")),
    Sketcher.Constraint("DistanceX", 15, 2, 5, 2, Q("8.1 in")),
    Sketcher.Constraint("DistanceX", -1, 1, 1, 2, Q("5.6920001 in")),
    Sketcher.Constraint("DistanceX", 1, 1, 1, 2, Q("203.15 mm")),
    Sketcher.Constraint("DistanceY", -1, 1, 0, 2, Q("14.642461 mm")),
    Sketcher.Constraint("DistanceY", -1, 1, 8, 2, Q("88.592991 mm")),
])
sketch4.setExpression("Constraints[37]", "Params.sketch4_width")
sketch4.setExpression("Constraints[38]", "Params.sketch4_height")
sketch4.setExpression("Constraints[39]", "Params.sketch4_width2")
sketch4.setExpression("Constraints[40]", "Params.sketch4_height2")
pad4 = body2.newObject("PartDesign::Pad", "Pad003")
pad4.Profile = sketch4
pad4.setExpression("Length", "Params.pad4_length")
pad4.Reversed = True
body3 = doc.addObject("PartDesign::Body", "Body002")

# Sketch on XY plane
sketch5 = body3.newObject("Sketcher::SketchObject", "Sketch004")
sketch5.AttachmentSupport = (doc.getObject("XY_Plane002"), [""])
sketch5.MapMode = "FlatFace"
sketch5.addGeometry([
    Part.LineSegment(App.Vector(-71.323197, 440.092461, 0), App.Vector(-71.323197, 14.642461, 0)),
    Part.LineSegment(App.Vector(-71.323197, 14.642461, 0), App.Vector(144.576803, 14.642461, 0)),
    Part.LineSegment(App.Vector(144.576803, 14.642461, 0), App.Vector(144.576803, 440.092461, 0)),
    Part.LineSegment(App.Vector(144.576803, 440.092461, 0), App.Vector(-71.323197, 440.092461, 0)),
], False)
sketch5.addConstraint([
    Sketcher.Constraint("Coincident", 0, 2, 1, 1),
    Sketcher.Constraint("Coincident", 1, 2, 2, 1),
    Sketcher.Constraint("Coincident", 2, 2, 3, 1),
    Sketcher.Constraint("Coincident", 3, 2, 0, 1),
    Sketcher.Constraint("Vertical", 0),
    Sketcher.Constraint("Horizontal", 1),
    Sketcher.Constraint("Vertical", 2),
    Sketcher.Constraint("Horizontal", 3),
    Sketcher.Constraint("DistanceX", 1, 1, 1, 2, Q("8.5 in")),
    Sketcher.Constraint("DistanceY", 0, 2, 0, 1, Q("16.75 in")),
    Sketcher.Constraint("DistanceX", 0, 2, -1, 1, Q("2.8079999 in")),
    Sketcher.Constraint("DistanceY", -1, 1, 0, 2, Q("14.642461 mm")),
])
sketch5.setExpression("Constraints[8]", "Params.sketch5_width")
sketch5.setExpression("Constraints[9]", "Params.sketch5_height")
pad5 = body3.newObject("PartDesign::Pad", "Pad004")
pad5.Profile = sketch5
pad5.setExpression("Length", "Params.pad5_length")
pad5.Reversed = True

# Sketch on XY plane
sketch6 = body3.newObject("Sketcher::SketchObject", "Sketch005")
sketch6.AttachmentSupport = (doc.getObject("XY_Plane002"), [""])
sketch6.MapMode = "FlatFace"
sketch6.addGeometry([
    Part.LineSegment(App.Vector(-58.573197, 427.392461, 0), App.Vector(-58.573197, 14.642461, 0)),  # 0
    Part.LineSegment(App.Vector(-58.573197, 14.642461, 0), App.Vector(144.576803, 14.642461, 0)),  # 1
    Part.LineSegment(App.Vector(144.576803, 14.642461, 0), App.Vector(144.576803, 440.092461, 0)),  # 2
    Part.LineSegment(App.Vector(144.576803, 440.092461, 0), App.Vector(-58.573197, 440.092461, 0)),  # 3
    Part.LineSegment(App.Vector(-58.573197, 440.092461, 0), App.Vector(-58.573197, 433.742461, 0)),  # 4
    Part.LineSegment(App.Vector(-58.573197, 433.742461, 0), App.Vector(131.876803, 433.742461, 0)),  # 5
    Part.LineSegment(App.Vector(131.876803, 433.742461, 0), App.Vector(131.876803, 427.392461, 0)),  # 6
    Part.LineSegment(App.Vector(131.876803, 427.392461, 0), App.Vector(-58.573197, 427.392461, 0)),  # 7
    Part.LineSegment(App.Vector(-71.323197, 440.092461, 0), App.Vector(-71.323197, 14.642461, 0)),  # 8
    Part.LineSegment(App.Vector(-71.323197, 14.642461, 0), App.Vector(-64.973197, 14.642461, 0)),  # 9
    Part.LineSegment(App.Vector(-64.973197, 14.642461, 0), App.Vector(-64.973197, 440.092461, 0)),  # 10
    Part.LineSegment(App.Vector(-64.973197, 440.092461, 0), App.Vector(-71.323197, 440.092461, 0)),  # 11
], False)
sketch6.addConstraint([
    Sketcher.Constraint("Coincident", 0, 2, 1, 1),
    Sketcher.Constraint("Coincident", 1, 2, 2, 1),
    Sketcher.Constraint("Coincident", 2, 2, 3, 1),
    Sketcher.Constraint("Coincident", 3, 2, 4, 1),
    Sketcher.Constraint("Coincident", 4, 2, 5, 1),
    Sketcher.Constraint("Coincident", 5, 2, 6, 1),
    Sketcher.Constraint("Coincident", 6, 2, 7, 1),
    Sketcher.Constraint("Coincident", 7, 2, 0, 1),
    Sketcher.Constraint("Coincident", 8, 2, 9, 1),
    Sketcher.Constraint("Coincident", 9, 2, 10, 1),
    Sketcher.Constraint("Coincident", 10, 2, 11, 1),
    Sketcher.Constraint("Coincident", 11, 2, 8, 1),
    Sketcher.Constraint("Vertical", 0),
    Sketcher.Constraint("Horizontal", 1),
    Sketcher.Constraint("Vertical", 2),
    Sketcher.Constraint("Horizontal", 3),
    Sketcher.Constraint("Vertical", 4),
    Sketcher.Constraint("Horizontal", 5),
    Sketcher.Constraint("Vertical", 6),
    Sketcher.Constraint("Horizontal", 7),
    Sketcher.Constraint("Vertical", 8),
    Sketcher.Constraint("Horizontal", 9),
    Sketcher.Constraint("Vertical", 10),
    Sketcher.Constraint("Horizontal", 11),
    Sketcher.Constraint("Horizontal", 1, 2, 8, 2),
    Sketcher.Constraint("Horizontal", 3, 2, 10, 2),
    Sketcher.Constraint("Vertical", 0, 2, 3, 2),
    Sketcher.Constraint("Equal", 11, 4),
    Sketcher.Constraint("Equal", 4, 6),
    Sketcher.Constraint("DistanceX", 11, 2, 5, 2, Q("8 in")),
    Sketcher.Constraint("DistanceX", 9, 1, 9, 2, Q("0.25 in")),
    Sketcher.Constraint("DistanceY", 0, 2, 0, 1, Q("16.25 in")),
    Sketcher.Constraint("DistanceX", 5, 2, 2, 2, Q("0.5 in")),
    Sketcher.Constraint("DistanceX", -1, 1, 1, 2, Q("5.6920001 in")),
    Sketcher.Constraint("DistanceX", 1, 1, 1, 2, Q("203.15 mm")),
    Sketcher.Constraint("DistanceY", -1, 1, 0, 2, Q("14.642461 mm")),
])
sketch6.setExpression("Constraints[30]", "Params.sketch6_width")
sketch6.setExpression("Constraints[31]", "Params.sketch6_height")
pad6 = body3.newObject("PartDesign::Pad", "Pad005")
pad6.Profile = sketch6
pad6.setExpression("Length", "Params.pad6_length")
body4 = doc.addObject("PartDesign::Body", "Body003")

# Sketch on YZ plane
sketch7 = body4.newObject("Sketcher::SketchObject", "Sketch006")
sketch7.AttachmentSupport = (doc.getObject("YZ_Plane003"), [""])
sketch7.MapMode = "FlatFace"
sketch7.addGeometry([
    Part.LineSegment(App.Vector(440.092461, -231.121404, 0), App.Vector(440.092461, 289.578596, 0)),
    Part.LineSegment(App.Vector(440.092461, 289.578596, 0), App.Vector(389.292461, 289.578596, 0)),
    Part.LineSegment(App.Vector(389.292461, 289.578596, 0), App.Vector(389.292461, -231.121404, 0)),
    Part.LineSegment(App.Vector(389.292461, -231.121404, 0), App.Vector(440.092461, -231.121404, 0)),
], False)
sketch7.addConstraint([
    Sketcher.Constraint("Coincident", 0, 2, 1, 1),
    Sketcher.Constraint("Coincident", 1, 2, 2, 1),
    Sketcher.Constraint("Coincident", 2, 2, 3, 1),
    Sketcher.Constraint("Coincident", 3, 2, 0, 1),
    Sketcher.Constraint("Vertical", 0),
    Sketcher.Constraint("Horizontal", 1),
    Sketcher.Constraint("Vertical", 2),
    Sketcher.Constraint("Horizontal", 3),
    Sketcher.Constraint("DistanceX", 1, 2, 1, 1, Q("2 in")),
    Sketcher.Constraint("DistanceY", 0, 1, 0, 2, Q("20.5 in")),
    Sketcher.Constraint("DistanceX", -1, 1, 0, 2, Q("440.092461 mm")),
    Sketcher.Constraint("DistanceY", -1, 1, 0, 2, Q("289.578596 mm")),
])
sketch7.setExpression("Constraints[8]", "Params.sketch7_width")
sketch7.setExpression("Constraints[9]", "Params.sketch7_height")
pad7 = body4.newObject("PartDesign::Pad", "Pad006")
pad7.Profile = sketch7
pad7.setExpression("Length", "Params.pad7_length")

# Sketch on YZ plane
sketch8 = body4.newObject("Sketcher::SketchObject", "Sketch007")
sketch8.AttachmentSupport = (doc.getObject("YZ_Plane003"), [""])
sketch8.MapMode = "FlatFace"
sketch8.addGeometry([
    Part.LineSegment(App.Vector(433.742461, 289.578596, 0), App.Vector(433.742461, -231.121404, 0)),  # 0
    Part.LineSegment(App.Vector(433.742461, -231.121404, 0), App.Vector(440.092461, -231.121404, 0)),  # 1
    Part.LineSegment(App.Vector(440.092461, -231.121404, 0), App.Vector(440.092461, 289.578596, 0)),  # 2
    Part.LineSegment(App.Vector(440.092461, 289.578596, 0), App.Vector(433.742461, 289.578596, 0)),  # 3
    Part.LineSegment(App.Vector(389.292461, 289.578596, 0), App.Vector(389.292461, -231.121404, 0)),  # 4
    Part.LineSegment(App.Vector(389.292461, -231.121404, 0), App.Vector(427.392461, -231.121404, 0)),  # 5
    Part.LineSegment(App.Vector(427.392461, -231.121404, 0), App.Vector(427.392461, 289.578596, 0)),  # 6
    Part.LineSegment(App.Vector(427.392461, 289.578596, 0), App.Vector(389.292461, 289.578596, 0)),  # 7
], False)
sketch8.addConstraint([
    Sketcher.Constraint("Coincident", 0, 2, 1, 1),
    Sketcher.Constraint("Coincident", 1, 2, 2, 1),
    Sketcher.Constraint("Coincident", 2, 2, 3, 1),
    Sketcher.Constraint("Coincident", 3, 2, 0, 1),
    Sketcher.Constraint("Coincident", 4, 2, 5, 1),
    Sketcher.Constraint("Coincident", 5, 2, 6, 1),
    Sketcher.Constraint("Coincident", 6, 2, 7, 1),
    Sketcher.Constraint("Coincident", 7, 2, 4, 1),
    Sketcher.Constraint("Vertical", 0),
    Sketcher.Constraint("Horizontal", 1),
    Sketcher.Constraint("Vertical", 2),
    Sketcher.Constraint("Horizontal", 3),
    Sketcher.Constraint("Vertical", 4),
    Sketcher.Constraint("Horizontal", 5),
    Sketcher.Constraint("Vertical", 6),
    Sketcher.Constraint("Horizontal", 7),
    Sketcher.Constraint("Horizontal", 1, 2, 4, 2),
    Sketcher.Constraint("Horizontal", 3, 2, 6, 2),
    Sketcher.Constraint("DistanceX", 5, 1, 5, 2, Q("1.5 in")),
    Sketcher.Constraint("DistanceY", 0, 2, 0, 1, Q("20.5 in")),
    Sketcher.Constraint("DistanceX", 4, 2, 1, 2, Q("2 in")),
    Sketcher.Constraint("DistanceX", 1, 1, 1, 2, Q("0.25 in")),
    Sketcher.Constraint("DistanceX", -1, 1, 0, 2, Q("433.742461 mm")),
    Sketcher.Constraint("DistanceY", 0, 2, -1, 1, Q("231.121404 mm")),
])
sketch8.setExpression("Constraints[18]", "Params.sketch8_width")
sketch8.setExpression("Constraints[19]", "Params.sketch8_height")
sketch8.setExpression("Constraints[21]", "Params.sketch8_width2")
pad8 = body4.newObject("PartDesign::Pad", "Pad007")
pad8.Profile = sketch8
pad8.setExpression("Length", "Params.pad8_length")
pad8.Reversed = True

doc.recompute()
